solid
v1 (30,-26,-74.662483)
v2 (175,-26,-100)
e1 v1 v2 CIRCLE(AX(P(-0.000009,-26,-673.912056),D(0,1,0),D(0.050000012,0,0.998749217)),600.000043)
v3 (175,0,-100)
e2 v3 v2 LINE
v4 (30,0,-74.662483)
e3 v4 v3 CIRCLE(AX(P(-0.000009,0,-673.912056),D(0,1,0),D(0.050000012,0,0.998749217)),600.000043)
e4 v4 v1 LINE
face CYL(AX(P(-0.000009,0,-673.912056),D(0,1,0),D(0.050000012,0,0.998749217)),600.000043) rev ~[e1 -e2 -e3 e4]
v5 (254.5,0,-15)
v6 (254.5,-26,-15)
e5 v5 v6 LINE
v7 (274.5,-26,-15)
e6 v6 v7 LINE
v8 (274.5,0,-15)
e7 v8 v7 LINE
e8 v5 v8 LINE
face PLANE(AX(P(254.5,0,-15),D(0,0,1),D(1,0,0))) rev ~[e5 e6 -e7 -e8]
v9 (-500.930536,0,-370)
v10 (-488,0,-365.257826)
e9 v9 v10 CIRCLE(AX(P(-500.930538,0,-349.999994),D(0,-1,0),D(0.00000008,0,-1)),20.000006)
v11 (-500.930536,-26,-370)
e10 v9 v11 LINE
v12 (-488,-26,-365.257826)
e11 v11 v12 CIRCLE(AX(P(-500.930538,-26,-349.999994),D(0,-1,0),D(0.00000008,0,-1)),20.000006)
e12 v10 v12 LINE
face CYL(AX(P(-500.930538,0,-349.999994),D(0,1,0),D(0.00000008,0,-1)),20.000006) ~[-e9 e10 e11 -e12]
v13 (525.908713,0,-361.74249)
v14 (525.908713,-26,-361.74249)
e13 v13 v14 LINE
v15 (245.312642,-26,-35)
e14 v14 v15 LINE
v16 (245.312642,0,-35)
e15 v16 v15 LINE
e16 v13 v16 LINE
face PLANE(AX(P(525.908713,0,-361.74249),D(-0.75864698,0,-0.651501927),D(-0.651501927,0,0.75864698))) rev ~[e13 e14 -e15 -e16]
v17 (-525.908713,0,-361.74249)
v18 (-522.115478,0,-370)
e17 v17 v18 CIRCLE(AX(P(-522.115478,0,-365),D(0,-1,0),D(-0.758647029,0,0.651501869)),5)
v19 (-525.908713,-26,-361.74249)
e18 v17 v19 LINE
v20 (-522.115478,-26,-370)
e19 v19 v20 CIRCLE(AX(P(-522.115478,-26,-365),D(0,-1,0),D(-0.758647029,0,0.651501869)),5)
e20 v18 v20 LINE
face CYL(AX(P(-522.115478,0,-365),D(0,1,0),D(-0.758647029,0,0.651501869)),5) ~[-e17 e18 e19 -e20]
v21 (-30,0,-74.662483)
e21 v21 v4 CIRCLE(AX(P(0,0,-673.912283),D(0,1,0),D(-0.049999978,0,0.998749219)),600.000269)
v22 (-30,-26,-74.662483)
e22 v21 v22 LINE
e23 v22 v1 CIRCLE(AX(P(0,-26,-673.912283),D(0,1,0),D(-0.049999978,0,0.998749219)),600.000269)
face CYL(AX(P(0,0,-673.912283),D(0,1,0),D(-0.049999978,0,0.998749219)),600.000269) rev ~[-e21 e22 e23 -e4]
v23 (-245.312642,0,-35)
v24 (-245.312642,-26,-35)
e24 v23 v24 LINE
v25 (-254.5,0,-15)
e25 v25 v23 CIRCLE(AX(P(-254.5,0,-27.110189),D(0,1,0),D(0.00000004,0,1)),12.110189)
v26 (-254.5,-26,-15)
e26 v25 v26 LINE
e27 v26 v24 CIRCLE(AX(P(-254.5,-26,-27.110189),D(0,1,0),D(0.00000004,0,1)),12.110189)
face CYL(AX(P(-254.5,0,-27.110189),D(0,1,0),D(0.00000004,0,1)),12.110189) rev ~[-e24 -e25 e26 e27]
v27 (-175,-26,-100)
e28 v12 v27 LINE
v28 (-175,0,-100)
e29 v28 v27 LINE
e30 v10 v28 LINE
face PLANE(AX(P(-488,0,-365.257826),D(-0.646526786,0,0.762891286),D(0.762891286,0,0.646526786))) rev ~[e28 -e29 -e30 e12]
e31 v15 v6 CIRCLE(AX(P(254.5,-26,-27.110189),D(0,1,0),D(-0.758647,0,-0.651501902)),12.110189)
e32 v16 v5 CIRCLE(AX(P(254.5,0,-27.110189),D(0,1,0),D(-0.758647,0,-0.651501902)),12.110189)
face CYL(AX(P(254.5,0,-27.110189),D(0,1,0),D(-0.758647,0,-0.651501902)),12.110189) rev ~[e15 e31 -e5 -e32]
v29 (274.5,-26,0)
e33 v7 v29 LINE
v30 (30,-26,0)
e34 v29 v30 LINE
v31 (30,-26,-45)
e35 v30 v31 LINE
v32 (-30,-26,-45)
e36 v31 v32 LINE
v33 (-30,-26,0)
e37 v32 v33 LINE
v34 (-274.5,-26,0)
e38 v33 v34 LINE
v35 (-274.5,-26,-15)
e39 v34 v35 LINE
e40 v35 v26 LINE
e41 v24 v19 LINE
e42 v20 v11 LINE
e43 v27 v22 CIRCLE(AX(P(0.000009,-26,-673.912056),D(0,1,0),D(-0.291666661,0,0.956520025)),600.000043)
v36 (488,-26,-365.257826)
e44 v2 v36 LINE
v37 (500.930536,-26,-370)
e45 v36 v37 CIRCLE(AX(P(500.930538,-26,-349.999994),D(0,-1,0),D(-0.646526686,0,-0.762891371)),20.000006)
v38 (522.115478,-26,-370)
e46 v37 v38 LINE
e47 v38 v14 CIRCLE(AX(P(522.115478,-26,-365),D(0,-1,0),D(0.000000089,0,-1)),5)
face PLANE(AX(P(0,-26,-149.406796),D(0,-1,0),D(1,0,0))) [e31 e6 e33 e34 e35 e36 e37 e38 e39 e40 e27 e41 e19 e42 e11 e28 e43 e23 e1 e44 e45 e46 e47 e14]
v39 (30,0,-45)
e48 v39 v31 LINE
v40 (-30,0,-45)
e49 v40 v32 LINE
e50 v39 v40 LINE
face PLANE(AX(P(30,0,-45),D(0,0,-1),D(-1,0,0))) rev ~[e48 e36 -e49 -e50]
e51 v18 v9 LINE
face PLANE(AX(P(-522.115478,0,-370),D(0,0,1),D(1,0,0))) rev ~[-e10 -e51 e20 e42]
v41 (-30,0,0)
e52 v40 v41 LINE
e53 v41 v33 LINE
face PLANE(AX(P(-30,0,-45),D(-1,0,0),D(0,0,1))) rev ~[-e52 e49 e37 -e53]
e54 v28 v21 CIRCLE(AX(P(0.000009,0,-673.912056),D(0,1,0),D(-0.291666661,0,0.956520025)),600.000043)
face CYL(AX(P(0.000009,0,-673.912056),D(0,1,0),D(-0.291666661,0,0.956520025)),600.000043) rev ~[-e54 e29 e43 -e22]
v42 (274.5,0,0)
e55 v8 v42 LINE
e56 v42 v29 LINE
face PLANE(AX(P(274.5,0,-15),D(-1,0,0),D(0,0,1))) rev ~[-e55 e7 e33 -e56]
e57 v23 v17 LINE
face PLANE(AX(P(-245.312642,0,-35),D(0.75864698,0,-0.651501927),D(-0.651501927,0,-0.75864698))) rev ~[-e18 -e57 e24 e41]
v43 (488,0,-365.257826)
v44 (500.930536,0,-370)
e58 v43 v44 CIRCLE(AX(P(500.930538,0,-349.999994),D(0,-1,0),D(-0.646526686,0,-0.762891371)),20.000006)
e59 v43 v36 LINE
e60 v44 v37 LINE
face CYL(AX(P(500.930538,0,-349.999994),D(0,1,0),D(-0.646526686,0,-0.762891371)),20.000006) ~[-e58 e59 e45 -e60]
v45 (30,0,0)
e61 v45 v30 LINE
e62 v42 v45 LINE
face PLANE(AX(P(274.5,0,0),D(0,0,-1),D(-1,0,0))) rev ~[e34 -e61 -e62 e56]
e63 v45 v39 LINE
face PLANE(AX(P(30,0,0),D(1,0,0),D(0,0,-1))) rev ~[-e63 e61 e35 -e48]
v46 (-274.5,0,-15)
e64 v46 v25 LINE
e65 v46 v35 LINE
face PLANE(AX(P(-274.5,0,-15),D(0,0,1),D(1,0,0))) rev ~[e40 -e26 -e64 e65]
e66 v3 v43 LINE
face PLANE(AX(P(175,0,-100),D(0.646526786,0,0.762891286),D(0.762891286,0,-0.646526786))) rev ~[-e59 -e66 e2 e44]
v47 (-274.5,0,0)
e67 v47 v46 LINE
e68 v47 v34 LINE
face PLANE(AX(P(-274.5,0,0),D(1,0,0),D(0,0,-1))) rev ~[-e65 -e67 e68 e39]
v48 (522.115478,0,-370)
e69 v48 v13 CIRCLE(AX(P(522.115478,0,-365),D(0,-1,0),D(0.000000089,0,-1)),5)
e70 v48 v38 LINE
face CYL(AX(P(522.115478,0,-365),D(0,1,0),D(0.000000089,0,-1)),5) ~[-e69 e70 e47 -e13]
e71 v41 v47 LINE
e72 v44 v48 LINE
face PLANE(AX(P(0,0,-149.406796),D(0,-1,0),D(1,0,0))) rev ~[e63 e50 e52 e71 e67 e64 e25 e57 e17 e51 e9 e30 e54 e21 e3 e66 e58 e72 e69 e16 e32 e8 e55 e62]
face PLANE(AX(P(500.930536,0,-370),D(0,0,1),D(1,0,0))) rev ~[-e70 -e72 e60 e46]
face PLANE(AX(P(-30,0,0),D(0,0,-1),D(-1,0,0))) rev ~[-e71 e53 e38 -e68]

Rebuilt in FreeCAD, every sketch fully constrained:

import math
import FreeCAD as App
import Part
import Sketcher
Q = App.Units.Quantity

doc = App.newDocument("Part")
body = doc.addObject("PartDesign::Body", "Body")

sketch1 = doc.addObject("Sketcher::SketchObject", "Sketch")
body.addObject(sketch1)
sketch1.AttachmentSupport = (doc.XZ_Plane, [""])
sketch1.MapMode = "FlatFace"
sketch1.addGeometry(Part.ArcOfCircle(Part.Circle(App.Vector(522.115478, -365, 0), App.Vector(0, 0, 1), 5), math.radians(-89.999995), math.radians(40.654932)), False)
sketch1.addGeometry(Part.LineSegment(App.Vector(525.908713, -361.74249, 0), App.Vector(245.312642, -35, 0)), False)
sketch1.addGeometry(Part.ArcOfCircle(Part.Circle(App.Vector(254.5, -27.110189, 0), App.Vector(0, 0, 1), 12.110189), math.radians(90.000002), math.radians(220.654935)), False)
sketch1.addGeometry(Part.LineSegment(App.Vector(254.5, -15, 0), App.Vector(274.5, -15, 0)), False)
sketch1.addGeometry(Part.LineSegment(App.Vector(274.5, -15, 0), App.Vector(274.5, 0, 0)), False)
sketch1.addGeometry(Part.LineSegment(App.Vector(274.5, 0, 0), App.Vector(30, 0, 0)), False)
sketch1.addGeometry(Part.LineSegment(App.Vector(30, 0, 0), App.Vector(30, -45, 0)), False)
sketch1.addGeometry(Part.LineSegment(App.Vector(30, -45, 0), App.Vector(-30, -45, 0)), False)
sketch1.addGeometry(Part.LineSegment(App.Vector(-30, -45, 0), App.Vector(-30, 0, 0)), False)
sketch1.addGeometry(Part.LineSegment(App.Vector(-30, 0, 0), App.Vector(-274.5, 0, 0)), False)
sketch1.addGeometry(Part.LineSegment(App.Vector(-274.5, 0, 0), App.Vector(-274.5, -15, 0)), False)
sketch1.addGeometry(Part.LineSegment(App.Vector(-274.5, -15, 0), App.Vector(-254.5, -15, 0)), False)
sketch1.addGeometry(Part.ArcOfCircle(Part.Circle(App.Vector(-254.5, -27.110189, 0), App.Vector(0, 0, 1), 12.110189), math.radians(-40.654935), math.radians(89.999998)), False)
sketch1.addGeometry(Part.LineSegment(App.Vector(-245.312642, -35, 0), App.Vector(-525.908713, -361.74249, 0)), False)
sketch1.addGeometry(Part.ArcOfCircle(Part.Circle(App.Vector(-522.115478, -365, 0), App.Vector(0, 0, 1), 5), math.radians(139.345068), math.radians(269.999995)), False)
sketch1.addGeometry(Part.LineSegment(App.Vector(-522.115478, -370, 0), App.Vector(-500.930536, -370, 0)), False)
sketch1.addGeometry(Part.ArcOfCircle(Part.Circle(App.Vector(-500.930538, -349.999994, 0), App.Vector(0, 0, 1), 20.000006), math.radians(-89.999995), math.radians(-49.719762)), False)
sketch1.addGeometry(Part.LineSegment(App.Vector(-488, -365.257826, 0), App.Vector(-175, -100, 0)), False)
sketch1.addGeometry(Part.ArcOfCircle(Part.Circle(App.Vector(0.000009, -673.912056, 0), App.Vector(0, 0, 1), 600.000043), math.radians(92.865985), math.radians(106.957763)), False)
sketch1.addGeometry(Part.ArcOfCircle(Part.Circle(App.Vector(0, -673.912283, 0), App.Vector(0, 0, 1), 600.000269), math.radians(87.134017), math.radians(92.865983)), False)
sketch1.addGeometry(Part.ArcOfCircle(Part.Circle(App.Vector(-0.000009, -673.912056, 0), App.Vector(0, 0, 1), 600.000043), math.radians(73.042237), math.radians(87.134015)), False)
sketch1.addGeometry(Part.LineSegment(App.Vector(175, -100, 0), App.Vector(488, -365.257826, 0)), False)
sketch1.addGeometry(Part.ArcOfCircle(Part.Circle(App.Vector(500.930538, -349.999994, 0), App.Vector(0, 0, 1), 20.000006), math.radians(-130.280238), math.radians(-90.000005)), False)
sketch1.addGeometry(Part.LineSegment(App.Vector(500.930536, -370, 0), App.Vector(522.115478, -370, 0)), False)
sketch1.addConstraint(Sketcher.Constraint("Coincident", 0, 2, 1, 1))
sketch1.addConstraint(Sketcher.Constraint("Coincident", 1, 2, 2, 2))
sketch1.addConstraint(Sketcher.Constraint("Coincident", 2, 1, 3, 1))
sketch1.addConstraint(Sketcher.Constraint("Coincident", 3, 2, 4, 1))
sketch1.addConstraint(Sketcher.Constraint("Coincident", 4, 2, 5, 1))
sketch1.addConstraint(Sketcher.Constraint("Coincident", 5, 2, 6, 1))
sketch1.addConstraint(Sketcher.Constraint("Coincident", 6, 2, 7, 1))
sketch1.addConstraint(Sketcher.Constraint("Coincident", 7, 2, 8, 1))
sketch1.addConstraint(Sketcher.Constraint("Coincident", 8, 2, 9, 1))
sketch1.addConstraint(Sketcher.Constraint("Coincident", 9, 2, 10, 1))
sketch1.addConstraint(Sketcher.Constraint("Coincident", 10, 2, 11, 1))
sketch1.addConstraint(Sketcher.Constraint("Coincident", 11, 2, 12, 2))
sketch1.addConstraint(Sketcher.Constraint("Coincident", 12, 1, 13, 1))
sketch1.addConstraint(Sketcher.Constraint("Coincident", 13, 2, 14, 1))
sketch1.addConstraint(Sketcher.Constraint("Coincident", 14, 2, 15, 1))
sketch1.addConstraint(Sketcher.Constraint("Coincident", 15, 2, 16, 1))
sketch1.addConstraint(Sketcher.Constraint("Coincident", 16, 2, 17, 1))
sketch1.addConstraint(Sketcher.Constraint("Coincident", 17, 2, 18, 2))
sketch1.addConstraint(Sketcher.Constraint("Coincident", 18, 1, 19, 2))
sketch1.addConstraint(Sketcher.Constraint("Coincident", 19, 1, 20, 2))
sketch1.addConstraint(Sketcher.Constraint("Coincident", 20, 1, 21, 1))
sketch1.addConstraint(Sketcher.Constraint("Coincident", 21, 2, 22, 1))
sketch1.addConstraint(Sketcher.Constraint("Coincident", 22, 2, 23, 1))
sketch1.addConstraint(Sketcher.Constraint("Coincident", 23, 2, 0, 1))
sketch1.addConstraint(Sketcher.Constraint("Horizontal", 3))
sketch1.addConstraint(Sketcher.Constraint("Vertical", 4))
sketch1.addConstraint(Sketcher.Constraint("Horizontal", 5))
sketch1.addConstraint(Sketcher.Constraint("Vertical", 6))
sketch1.addConstraint(Sketcher.Constraint("Horizontal", 7))
sketch1.addConstraint(Sketcher.Constraint("Vertical", 8))
sketch1.addConstraint(Sketcher.Constraint("Horizontal", 9))
sketch1.addConstraint(Sketcher.Constraint("Vertical", 10))
sketch1.addConstraint(Sketcher.Constraint("Horizontal", 11))
sketch1.addConstraint(Sketcher.Constraint("Horizontal", 15))
sketch1.addConstraint(Sketcher.Constraint("Horizontal", 23))
sketch1.addConstraint(Sketcher.Constraint("PointOnObject", 19, 3, -2))
sketch1.addConstraint(Sketcher.Constraint("PointOnObject", 4, 2, -1))
sketch1.addConstraint(Sketcher.Constraint("PointOnObject", 8, 2, -1))
sketch1.addConstraint(Sketcher.Constraint("Radius", 0, Q("5 mm")))
sketch1.addConstraint(Sketcher.Constraint("Radius", 14, Q("5 mm")))
sketch1.addConstraint(Sketcher.Constraint("DistanceX", 3, 1, 3, 2, Q("20 mm")))
sketch1.addConstraint(Sketcher.Constraint("DistanceX", 7, 2, 7, 1, Q("60 mm")))
sketch1.addConstraint(Sketcher.Constraint("DistanceX", 11, 1, 11, 2, Q("20 mm")))
sketch1.addConstraint(Sketcher.Constraint("DistanceY", 4, 1, 4, 2, Q("15 mm")))
sketch1.addConstraint(Sketcher.Constraint("DistanceY", 6, 2, 6, 1, Q("45 mm")))
sketch1.addConstraint(Sketcher.Constraint("DistanceY", 10, 2, 10, 1, Q("15 mm")))
sketch1.addConstraint(Sketcher.Constraint("DistanceX", 5, 2, 5, 1, Q("244.5 mm")))
sketch1.addConstraint(Sketcher.Constraint("DistanceX", 9, 2, 9, 1, Q("244.5 mm")))
sketch1.addConstraint(Sketcher.Constraint("DistanceY", 0, 3, -1, 1, Q("365 mm")))
sketch1.addConstraint(Sketcher.Constraint("DistanceY", 14, 3, -1, 1, Q("365 mm")))
sketch1.addConstraint(Sketcher.Constraint("DistanceY", 1, 2, -1, 1, Q("35 mm")))
sketch1.addConstraint(Sketcher.Constraint("DistanceX", -1, 1, 5, 2, Q("30 mm")))
sketch1.addConstraint(Sketcher.Constraint("DistanceY", 12, 1, -1, 1, Q("35 mm")))
sketch1.addConstraint(Sketcher.Constraint("DistanceX", 16, 2, -1, 1, Q("488 mm")))
sketch1.addConstraint(Sketcher.Constraint("DistanceX", 17, 2, -1, 1, Q("175 mm")))
sketch1.addConstraint(Sketcher.Constraint("DistanceY", 17, 2, -1, 1, Q("100 mm")))
sketch1.addConstraint(Sketcher.Constraint("DistanceX", 18, 1, -1, 1, Q("30 mm")))
sketch1.addConstraint(Sketcher.Constraint("DistanceX", -1, 1, 19, 1, Q("30 mm")))
sketch1.addConstraint(Sketcher.Constraint("DistanceY", 20, 1, -1, 1, Q("100 mm")))
sketch1.addConstraint(Sketcher.Constraint("DistanceX", -1, 1, 21, 2, Q("488 mm")))
sketch1.addConstraint(Sketcher.Constraint("DistanceX", 12, 3, 2, 3, Q("509.000001 mm")))
sketch1.addConstraint(Sketcher.Constraint("DistanceX", 2, 3, 3, 2, Q("20 mm")))
sketch1.addConstraint(Sketcher.Constraint("Radius", 2, Q("12.110189 mm")))
sketch1.addConstraint(Sketcher.Constraint("Radius", 12, Q("12.110189 mm")))
sketch1.addConstraint(Sketcher.Constraint("Radius", 19, Q("600.000269 mm")))
sketch1.addConstraint(Sketcher.Constraint("Radius", 16, Q("20.000006 mm")))
sketch1.addConstraint(Sketcher.Constraint("Radius", 18, Q("600.000043 mm")))
sketch1.addConstraint(Sketcher.Constraint("Radius", 20, Q("600.000043 mm")))
sketch1.addConstraint(Sketcher.Constraint("Radius", 22, Q("20.000006 mm")))
sketch1.addConstraint(Sketcher.Constraint("DistanceY", 0, 2, 2, 3, Q("334.632301 mm")))
sketch1.addConstraint(Sketcher.Constraint("DistanceY", 13, 2, 12, 3, Q("334.632301 mm")))
sketch1.addConstraint(Sketcher.Constraint("DistanceX", 15, 1, 15, 2, Q("21.184942 mm")))
sketch1.addConstraint(Sketcher.Constraint("DistanceX", 23, 1, 23, 2, Q("21.184942 mm")))
sketch1.addConstraint(Sketcher.Constraint("DistanceX", 14, 2, -1, 1, Q("522.115478 mm")))
sketch1.addConstraint(Sketcher.Constraint("DistanceX", -1, 1, 23, 2, Q("522.115478 mm")))
sketch1.addConstraint(Sketcher.Constraint("DistanceX", 12, 3, 0, 3, Q("776.615478 mm")))
sketch1.addConstraint(Sketcher.Constraint("DistanceX", 14, 3, 2, 3, Q("776.615478 mm")))
sketch1.addConstraint(Sketcher.Constraint("DistanceX", 14, 3, 16, 3, Q("21.18494 mm")))
sketch1.addConstraint(Sketcher.Constraint("DistanceX", 18, 3, 0, 3, Q("522.115468 mm")))
sketch1.addConstraint(Sketcher.Constraint("DistanceX", 16, 3, 20, 3, Q("500.930528 mm")))
sketch1.addConstraint(Sketcher.Constraint("DistanceX", 22, 3, 0, 3, Q("21.18494 mm")))
pad1 = doc.addObject("PartDesign::Pad", "Pad")
body.addObject(pad1)
pad1.Profile = sketch1
pad1.Length = 26

doc.recompute()
